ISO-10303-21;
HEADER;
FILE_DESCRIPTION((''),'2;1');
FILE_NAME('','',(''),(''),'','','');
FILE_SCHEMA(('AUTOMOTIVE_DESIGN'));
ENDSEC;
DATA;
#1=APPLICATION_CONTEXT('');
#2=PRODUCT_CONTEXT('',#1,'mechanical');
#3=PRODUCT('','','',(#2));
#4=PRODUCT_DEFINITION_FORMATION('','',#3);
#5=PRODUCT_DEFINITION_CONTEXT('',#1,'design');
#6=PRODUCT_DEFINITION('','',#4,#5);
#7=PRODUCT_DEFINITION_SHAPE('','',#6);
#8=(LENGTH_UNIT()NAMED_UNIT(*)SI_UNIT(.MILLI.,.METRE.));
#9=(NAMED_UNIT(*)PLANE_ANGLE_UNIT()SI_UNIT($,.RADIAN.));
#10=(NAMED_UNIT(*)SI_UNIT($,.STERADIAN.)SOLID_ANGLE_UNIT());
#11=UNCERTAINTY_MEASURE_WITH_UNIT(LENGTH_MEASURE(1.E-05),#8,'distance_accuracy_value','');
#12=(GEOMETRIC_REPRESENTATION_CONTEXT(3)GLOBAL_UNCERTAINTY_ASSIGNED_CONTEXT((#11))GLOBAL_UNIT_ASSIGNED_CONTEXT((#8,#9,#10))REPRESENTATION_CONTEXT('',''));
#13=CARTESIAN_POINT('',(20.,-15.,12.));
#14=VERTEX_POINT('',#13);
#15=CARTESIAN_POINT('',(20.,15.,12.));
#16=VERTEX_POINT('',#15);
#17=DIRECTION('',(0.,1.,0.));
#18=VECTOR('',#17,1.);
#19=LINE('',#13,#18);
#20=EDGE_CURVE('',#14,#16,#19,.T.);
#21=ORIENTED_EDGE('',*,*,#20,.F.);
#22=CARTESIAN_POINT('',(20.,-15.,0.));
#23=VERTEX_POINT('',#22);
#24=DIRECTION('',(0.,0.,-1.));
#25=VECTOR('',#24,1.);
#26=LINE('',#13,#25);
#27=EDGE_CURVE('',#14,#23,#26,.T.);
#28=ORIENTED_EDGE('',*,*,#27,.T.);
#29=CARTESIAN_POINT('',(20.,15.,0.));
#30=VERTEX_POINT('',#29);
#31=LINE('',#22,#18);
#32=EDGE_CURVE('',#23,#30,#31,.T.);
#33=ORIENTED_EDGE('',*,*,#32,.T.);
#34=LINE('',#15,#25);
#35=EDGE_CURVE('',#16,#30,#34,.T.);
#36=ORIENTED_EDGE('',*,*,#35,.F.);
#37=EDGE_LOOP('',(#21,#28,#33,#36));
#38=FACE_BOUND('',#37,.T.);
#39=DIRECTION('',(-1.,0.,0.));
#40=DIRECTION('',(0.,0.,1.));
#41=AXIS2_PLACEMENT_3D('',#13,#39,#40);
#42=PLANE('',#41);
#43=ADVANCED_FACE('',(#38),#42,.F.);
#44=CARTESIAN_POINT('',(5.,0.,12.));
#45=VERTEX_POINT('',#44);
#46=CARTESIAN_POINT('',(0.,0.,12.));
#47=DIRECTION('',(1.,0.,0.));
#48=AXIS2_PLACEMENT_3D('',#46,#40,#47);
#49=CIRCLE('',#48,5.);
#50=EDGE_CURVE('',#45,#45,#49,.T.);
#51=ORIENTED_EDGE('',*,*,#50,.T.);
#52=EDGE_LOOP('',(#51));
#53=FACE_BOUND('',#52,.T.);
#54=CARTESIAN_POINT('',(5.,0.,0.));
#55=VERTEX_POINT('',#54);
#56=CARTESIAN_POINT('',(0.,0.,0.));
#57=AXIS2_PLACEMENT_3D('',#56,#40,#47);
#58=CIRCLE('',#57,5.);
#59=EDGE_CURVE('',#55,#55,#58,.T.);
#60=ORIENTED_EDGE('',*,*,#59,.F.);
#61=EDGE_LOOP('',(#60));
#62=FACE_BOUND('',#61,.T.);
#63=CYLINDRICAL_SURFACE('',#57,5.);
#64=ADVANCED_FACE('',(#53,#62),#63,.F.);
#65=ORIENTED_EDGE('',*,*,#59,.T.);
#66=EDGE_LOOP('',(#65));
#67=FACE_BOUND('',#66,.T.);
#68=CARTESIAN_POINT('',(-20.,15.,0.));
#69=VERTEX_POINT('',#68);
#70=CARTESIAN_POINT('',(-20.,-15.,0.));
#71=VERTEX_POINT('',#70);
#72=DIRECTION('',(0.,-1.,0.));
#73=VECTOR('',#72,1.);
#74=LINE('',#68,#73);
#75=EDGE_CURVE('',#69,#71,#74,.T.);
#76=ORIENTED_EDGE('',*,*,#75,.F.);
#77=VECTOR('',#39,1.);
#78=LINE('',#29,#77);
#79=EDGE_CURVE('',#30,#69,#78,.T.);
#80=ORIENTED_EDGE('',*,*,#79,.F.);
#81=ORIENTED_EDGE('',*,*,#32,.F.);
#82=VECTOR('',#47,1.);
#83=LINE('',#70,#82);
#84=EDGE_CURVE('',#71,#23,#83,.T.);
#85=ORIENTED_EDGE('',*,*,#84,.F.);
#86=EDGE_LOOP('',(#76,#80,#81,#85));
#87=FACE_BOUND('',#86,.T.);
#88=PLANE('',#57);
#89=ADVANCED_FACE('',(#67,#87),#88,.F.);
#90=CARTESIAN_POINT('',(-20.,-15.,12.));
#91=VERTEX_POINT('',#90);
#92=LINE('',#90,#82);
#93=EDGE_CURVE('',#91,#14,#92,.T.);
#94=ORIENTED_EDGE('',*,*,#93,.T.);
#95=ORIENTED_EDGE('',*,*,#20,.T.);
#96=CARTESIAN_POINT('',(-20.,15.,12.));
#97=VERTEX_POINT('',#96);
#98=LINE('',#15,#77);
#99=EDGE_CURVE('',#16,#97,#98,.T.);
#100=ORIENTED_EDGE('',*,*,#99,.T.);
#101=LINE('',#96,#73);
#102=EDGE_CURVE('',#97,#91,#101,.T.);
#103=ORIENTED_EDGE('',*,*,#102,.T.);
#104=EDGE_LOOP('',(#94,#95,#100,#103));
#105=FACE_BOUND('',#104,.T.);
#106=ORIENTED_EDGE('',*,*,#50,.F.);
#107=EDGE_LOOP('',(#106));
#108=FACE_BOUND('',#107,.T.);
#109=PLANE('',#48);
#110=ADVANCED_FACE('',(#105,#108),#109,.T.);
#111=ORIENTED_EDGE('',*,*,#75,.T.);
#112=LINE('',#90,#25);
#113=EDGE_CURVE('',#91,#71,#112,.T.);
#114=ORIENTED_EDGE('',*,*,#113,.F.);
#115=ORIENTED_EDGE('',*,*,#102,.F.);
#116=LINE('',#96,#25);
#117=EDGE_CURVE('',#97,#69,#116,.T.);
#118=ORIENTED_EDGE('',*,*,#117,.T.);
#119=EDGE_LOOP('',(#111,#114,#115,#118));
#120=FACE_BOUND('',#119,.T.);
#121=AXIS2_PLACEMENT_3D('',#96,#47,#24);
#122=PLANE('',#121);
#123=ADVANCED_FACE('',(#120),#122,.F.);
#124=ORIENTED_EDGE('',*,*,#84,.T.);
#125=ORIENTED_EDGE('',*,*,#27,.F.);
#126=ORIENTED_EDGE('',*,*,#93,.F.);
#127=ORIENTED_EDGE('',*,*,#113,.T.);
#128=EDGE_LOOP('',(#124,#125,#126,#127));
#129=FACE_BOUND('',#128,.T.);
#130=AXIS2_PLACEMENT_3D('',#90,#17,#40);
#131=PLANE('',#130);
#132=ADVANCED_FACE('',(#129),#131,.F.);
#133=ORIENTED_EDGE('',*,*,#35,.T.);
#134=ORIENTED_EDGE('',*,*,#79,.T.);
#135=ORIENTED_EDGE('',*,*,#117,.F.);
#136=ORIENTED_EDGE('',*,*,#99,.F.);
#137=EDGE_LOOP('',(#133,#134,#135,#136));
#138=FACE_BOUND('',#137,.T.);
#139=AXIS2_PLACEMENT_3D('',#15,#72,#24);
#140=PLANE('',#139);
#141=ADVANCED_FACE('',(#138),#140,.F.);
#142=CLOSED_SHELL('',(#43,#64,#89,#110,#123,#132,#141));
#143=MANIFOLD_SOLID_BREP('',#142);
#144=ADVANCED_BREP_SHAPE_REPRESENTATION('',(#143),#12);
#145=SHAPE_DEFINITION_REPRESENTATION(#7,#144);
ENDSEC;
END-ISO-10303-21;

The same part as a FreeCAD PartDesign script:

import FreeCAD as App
import Part
import Sketcher

V = App.Vector
Q = App.Units.Quantity

doc = App.newDocument("Part")
body = doc.addObject("PartDesign::Body", "Body")

# Sketch on XY plane
sketch1 = doc.addObject("Sketcher::SketchObject", "Sketch")
body.addObject(sketch1)
sketch1.AttachmentSupport = (doc.XY_Plane, [""])
sketch1.MapMode = "FlatFace"
sketch1.addGeometry(Part.LineSegment(V(-20, 15, 0), V(-20, -15, 0)), False)
sketch1.addGeometry(Part.LineSegment(V(-20, -15, 0), V(20, -15, 0)), False)
sketch1.addGeometry(Part.LineSegment(V(20, -15, 0), V(20, 15, 0)), False)
sketch1.addGeometry(Part.LineSegment(V(20, 15, 0), V(-20, 15, 0)), False)
sketch1.addConstraint(Sketcher.Constraint("Coincident", 0, 2, 1, 1))
sketch1.addConstraint(Sketcher.Constraint("Coincident", 1, 2, 2, 1))
sketch1.addConstraint(Sketcher.Constraint("Coincident", 2, 2, 3, 1))
sketch1.addConstraint(Sketcher.Constraint("Coincident", 3, 2, 0, 1))
sketch1.addConstraint(Sketcher.Constraint("Vertical", 0))
sketch1.addConstraint(Sketcher.Constraint("Horizontal", 1))
sketch1.addConstraint(Sketcher.Constraint("Vertical", 2))
sketch1.addConstraint(Sketcher.Constraint("Horizontal", 3))
sketch1.addConstraint(Sketcher.Constraint("Symmetric", 0, 2, 2, 2, -1, 1))
sketch1.addConstraint(Sketcher.Constraint("DistanceX", 1, 1, 1, 2, Q("40 mm")))
sketch1.addConstraint(Sketcher.Constraint("DistanceY", 0, 2, 0, 1, Q("30 mm")))
pad1 = doc.addObject("PartDesign::Pad", "Pad")
body.addObject(pad1)
pad1.Profile = sketch1
pad1.Length = 12

# Sketch on XY plane
sketch2 = doc.addObject("Sketcher::SketchObject", "Sketch001")
body.addObject(sketch2)
sketch2.AttachmentSupport = (doc.XY_Plane, [""])
sketch2.MapMode = "FlatFace"
sketch2.AttachmentOffset = App.Placement(V(0, 0, 12), App.Rotation())
sketch2.addGeometry(Part.Circle(V(0, 0, 0), V(0, 0, 1), 5), False)
sketch2.addConstraint(Sketcher.Constraint("Coincident", 0, 3, -1, 1))
sketch2.addConstraint(Sketcher.Constraint("Diameter", 0, Q("10 mm")))
pocket1 = doc.addObject("PartDesign::Pocket", "Pocket")
body.addObject(pocket1)
pocket1.Profile = sketch2
pocket1.Type = "ThroughAll"

doc.recompute()
